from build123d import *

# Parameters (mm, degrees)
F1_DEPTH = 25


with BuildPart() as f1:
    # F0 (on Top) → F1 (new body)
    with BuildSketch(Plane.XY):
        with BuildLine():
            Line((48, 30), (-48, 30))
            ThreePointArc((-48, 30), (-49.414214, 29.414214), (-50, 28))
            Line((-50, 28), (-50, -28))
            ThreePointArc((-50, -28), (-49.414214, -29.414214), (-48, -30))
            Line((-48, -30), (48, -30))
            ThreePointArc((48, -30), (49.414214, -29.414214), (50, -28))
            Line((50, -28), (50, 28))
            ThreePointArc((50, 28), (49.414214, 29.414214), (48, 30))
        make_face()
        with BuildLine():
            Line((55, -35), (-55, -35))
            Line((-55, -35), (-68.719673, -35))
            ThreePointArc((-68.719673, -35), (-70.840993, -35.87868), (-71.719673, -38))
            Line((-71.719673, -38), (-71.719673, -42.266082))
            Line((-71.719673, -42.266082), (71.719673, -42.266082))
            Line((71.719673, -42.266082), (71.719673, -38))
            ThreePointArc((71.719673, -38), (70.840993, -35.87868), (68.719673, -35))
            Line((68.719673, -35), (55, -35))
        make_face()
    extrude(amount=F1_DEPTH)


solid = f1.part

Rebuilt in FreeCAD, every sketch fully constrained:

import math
import FreeCAD as App
import Part
import Sketcher
Q = App.Units.Quantity

doc = App.newDocument("Part")
body = doc.addObject("PartDesign::Body", "Body")
body.AllowCompound = True

# Sketch on XY plane
sketch1 = doc.addObject("Sketcher::SketchObject", "Sketch")
body.addObject(sketch1)
sketch1.AttachmentSupport = (doc.XY_Plane, [""])
sketch1.MapMode = "FlatFace"
sketch1.addGeometry(Part.LineSegment(App.Vector(48, 30, 0), App.Vector(-48, 30, 0)), False)
sketch1.addGeometry(Part.ArcOfCircle(Part.Circle(App.Vector(-48, 28, 0), App.Vector(0, 0, 1), 2), math.radians(90), math.radians(180)), False)
sketch1.addGeometry(Part.LineSegment(App.Vector(-50, 28, 0), App.Vector(-50, -28, 0)), False)
sketch1.addGeometry(Part.ArcOfCircle(Part.Circle(App.Vector(-48, -28, 0), App.Vector(0, 0, 1), 2), math.radians(180), math.radians(270)), False)
sketch1.addGeometry(Part.LineSegment(App.Vector(-48, -30, 0), App.Vector(48, -30, 0)), False)
sketch1.addGeometry(Part.ArcOfCircle(Part.Circle(App.Vector(48, -28, 0), App.Vector(0, 0, 1), 2), math.radians(-90), math.radians(0)), False)
sketch1.addGeometry(Part.LineSegment(App.Vector(50, -28, 0), App.Vector(50, 28, 0)), False)
sketch1.addGeometry(Part.ArcOfCircle(Part.Circle(App.Vector(48, 28, 0), App.Vector(0, 0, 1), 2), math.radians(0), math.radians(90)), False)
sketch1.addGeometry(Part.ArcOfCircle(Part.Circle(App.Vector(-68.7, -38, 0), App.Vector(0, 0, 1), 3), math.radians(90), math.radians(180)), False)
sketch1.addGeometry(Part.LineSegment(App.Vector(-71.7, -38, 0), App.Vector(-71.7, -42.3, 0)), False)
sketch1.addGeometry(Part.LineSegment(App.Vector(-71.7, -42.3, 0), App.Vector(71.7, -42.3, 0)), False)
sketch1.addGeometry(Part.LineSegment(App.Vector(71.7, -42.3, 0), App.Vector(71.7, -38, 0)), False)
sketch1.addGeometry(Part.ArcOfCircle(Part.Circle(App.Vector(68.7, -38, 0), App.Vector(0, 0, 1), 3), math.radians(0), math.radians(90)), False)
sketch1.addGeometry(Part.LineSegment(App.Vector(68.7, -35, 0), App.Vector(-68.7, -35, 0)), False)
sketch1.addConstraint(Sketcher.Constraint("Tangent", 0, 2, 1, 1))
sketch1.addConstraint(Sketcher.Constraint("Tangent", 1, 2, 2, 1))
sketch1.addConstraint(Sketcher.Constraint("Tangent", 2, 2, 3, 1))
sketch1.addConstraint(Sketcher.Constraint("Tangent", 3, 2, 4, 1))
sketch1.addConstraint(Sketcher.Constraint("Tangent", 4, 2, 5, 1))
sketch1.addConstraint(Sketcher.Constraint("Tangent", 5, 2, 6, 1))
sketch1.addConstraint(Sketcher.Constraint("Tangent", 6, 2, 7, 1))
sketch1.addConstraint(Sketcher.Constraint("Tangent", 7, 2, 0, 1))
sketch1.addConstraint(Sketcher.Constraint("Tangent", 8, 2, 9, 1))
sketch1.addConstraint(Sketcher.Constraint("Coincident", 9, 2, 10, 1))
sketch1.addConstraint(Sketcher.Constraint("Coincident", 10, 2, 11, 1))
sketch1.addConstraint(Sketcher.Constraint("Tangent", 11, 2, 12, 1))
sketch1.addConstraint(Sketcher.Constraint("Tangent", 12, 2, 13, 1))
sketch1.addConstraint(Sketcher.Constraint("Tangent", 13, 2, 8, 1))
sketch1.addConstraint(Sketcher.Constraint("Horizontal", 0))
sketch1.addConstraint(Sketcher.Constraint("Vertical", 2))
sketch1.addConstraint(Sketcher.Constraint("Horizontal", 4))
sketch1.addConstraint(Sketcher.Constraint("Vertical", 6))
sketch1.addConstraint(Sketcher.Constraint("Vertical", 9))
sketch1.addConstraint(Sketcher.Constraint("Horizontal", 10))
sketch1.addConstraint(Sketcher.Constraint("Vertical", 11))
sketch1.addConstraint(Sketcher.Constraint("Horizontal", 13))
sketch1.addConstraint(Sketcher.Constraint("Equal", 1, 3))
sketch1.addConstraint(Sketcher.Constraint("Equal", 3, 5))
sketch1.addConstraint(Sketcher.Constraint("Equal", 5, 7))
sketch1.addConstraint(Sketcher.Constraint("Equal", 8, 12))
sketch1.addConstraint(Sketcher.Constraint("Symmetric", 1, 3, 5, 3, -1, 1))
sketch1.addConstraint(Sketcher.Constraint("Radius", 1, Q("1.999999 mm")))
sketch1.addConstraint(Sketcher.Constraint("Radius", 8, Q("3.000001 mm")))
sketch1.addConstraint(Sketcher.Constraint("DistanceX", 0, 2, 0, 1, Q("96 mm")))
sketch1.addConstraint(Sketcher.Constraint("DistanceY", 2, 2, 2, 1, Q("56 mm")))
sketch1.addConstraint(Sketcher.Constraint("DistanceY", 8, 3, -1, 1, Q("38.000001 mm")))
sketch1.addConstraint(Sketcher.Constraint("DistanceY", 9, 2, 9, 1, Q("4.266082 mm")))
sketch1.addConstraint(Sketcher.Constraint("DistanceX", 10, 1, 10, 2, Q("143.439346 mm")))
sketch1.addConstraint(Sketcher.Constraint("DistanceX", 8, 3, -1, 1, Q("68.719672 mm")))
pad1 = doc.addObject("PartDesign::Pad", "Pad")
body.addObject(pad1)
pad1.Profile = sketch1
pad1.Length = 25

doc.recompute()
